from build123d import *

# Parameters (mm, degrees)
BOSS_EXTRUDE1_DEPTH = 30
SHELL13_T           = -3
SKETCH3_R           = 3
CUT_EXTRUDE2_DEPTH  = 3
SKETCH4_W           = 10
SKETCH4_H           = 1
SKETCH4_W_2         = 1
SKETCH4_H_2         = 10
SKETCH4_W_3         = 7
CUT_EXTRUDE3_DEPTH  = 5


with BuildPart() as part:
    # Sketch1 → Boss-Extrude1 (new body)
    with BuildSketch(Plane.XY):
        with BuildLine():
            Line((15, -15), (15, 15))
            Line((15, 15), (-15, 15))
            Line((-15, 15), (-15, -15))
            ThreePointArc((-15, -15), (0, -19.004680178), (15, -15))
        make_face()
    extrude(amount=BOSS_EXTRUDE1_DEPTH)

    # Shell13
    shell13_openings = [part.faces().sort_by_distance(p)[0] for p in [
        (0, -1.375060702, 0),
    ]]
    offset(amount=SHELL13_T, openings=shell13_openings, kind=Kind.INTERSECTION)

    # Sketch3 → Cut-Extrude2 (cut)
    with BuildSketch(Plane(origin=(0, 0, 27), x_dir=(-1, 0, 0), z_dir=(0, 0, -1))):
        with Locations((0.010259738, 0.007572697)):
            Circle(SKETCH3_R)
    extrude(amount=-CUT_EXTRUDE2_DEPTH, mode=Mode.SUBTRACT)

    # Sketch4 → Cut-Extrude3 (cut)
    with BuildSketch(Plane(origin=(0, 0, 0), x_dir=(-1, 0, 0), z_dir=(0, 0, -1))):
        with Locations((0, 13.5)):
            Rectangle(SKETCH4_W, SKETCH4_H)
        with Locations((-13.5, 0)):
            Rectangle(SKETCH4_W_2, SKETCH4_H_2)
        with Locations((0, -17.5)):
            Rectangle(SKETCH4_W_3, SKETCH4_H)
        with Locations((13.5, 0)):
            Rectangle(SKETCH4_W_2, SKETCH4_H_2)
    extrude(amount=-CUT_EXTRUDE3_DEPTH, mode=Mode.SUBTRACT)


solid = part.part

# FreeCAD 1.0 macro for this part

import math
import FreeCAD as App
import Part
import Sketcher

V = App.Vector
Q = App.Units.Quantity


def faces_at(feature, points):
    """Names of the faces that lie closest to the given points."""
    faces = feature.Shape.Faces
    near = lambda p: min(range(len(faces)), key=lambda i: faces[i].distToShape(Part.Vertex(*p))[0])
    return sorted({f"Face{near(p) + 1}" for p in points})

doc = App.newDocument("Part")
body = doc.addObject("PartDesign::Body", "Body")

# Sketch on XY plane
sketch1 = body.newObject("Sketcher::SketchObject", "Sketch")
sketch1.AttachmentSupport = (doc.getObject("XY_Plane"), [""])
sketch1.MapMode = "FlatFace"
sketch1.addGeometry([
    Part.LineSegment(V(15, -15, 0), V(15, 15, 0)),
    Part.LineSegment(V(15, 15, 0), V(-15, 15, 0)),
    Part.LineSegment(V(-15, 15, 0), V(-15, -15, 0)),
    Part.ArcOfCircle(Part.Circle(V(0, 11.089791, 0), V(0, 0, 1), 30.094471), math.radians(-119.896212), math.radians(-60.103788)),
], False)
sketch1.addConstraint([
    Sketcher.Constraint("Coincident", 0, 2, 1, 1),
    Sketcher.Constraint("Coincident", 1, 2, 2, 1),
    Sketcher.Constraint("Coincident", 2, 2, 3, 1),
    Sketcher.Constraint("Coincident", 3, 2, 0, 1),
    Sketcher.Constraint("Vertical", 0),
    Sketcher.Constraint("Horizontal", 1),
    Sketcher.Constraint("Vertical", 2),
    Sketcher.Constraint("Symmetric", 0, 2, 2, 2, -1, 1),
    Sketcher.Constraint("PointOnObject", 3, 3, -2),
    Sketcher.Constraint("Equal", 1, 0),
    Sketcher.Constraint("DistanceX", 1, 2, 1, 1, Q("30 mm")),
    Sketcher.Constraint("Radius", 3, Q("30.094471 mm")),
])
pad1 = body.newObject("PartDesign::Pad", "Pad")
pad1.Profile = sketch1
pad1.Length = 30
doc.recompute()

thickness = body.newObject("PartDesign::Thickness", "Thickness")
thickness.Base = (pad1, faces_at(pad1, [(0, -2.002, 0)]))
thickness.Value = 3
thickness.Reversed = True
thickness.Join = "Intersection"

# Sketch on XY plane
sketch2 = body.newObject("Sketcher::SketchObject", "Sketch001")
sketch2.AttachmentSupport = (doc.getObject("XY_Plane"), [""])
sketch2.MapMode = "FlatFace"
sketch2.AttachmentOffset = App.Placement(V(0, 0, 27), App.Rotation())
sketch2.addGeometry(Part.Circle(V(-0.01026, 0.007573, 0), V(0, 0, 1), 3), False)
sketch2.addConstraint([
    Sketcher.Constraint("Diameter", 0, Q("6 mm")),
    Sketcher.Constraint("DistanceX", 0, 3, -1, 1, Q("0.01026 mm")),
    Sketcher.Constraint("DistanceY", -1, 1, 0, 3, Q("0.007573 mm")),
])
pocket1 = body.newObject("PartDesign::Pocket", "Pocket")
pocket1.Profile = sketch2
pocket1.Length = 3
pocket1.Reversed = True

# Sketch on XY plane
sketch3 = body.newObject("Sketcher::SketchObject", "Sketch002")
sketch3.AttachmentSupport = (doc.getObject("XY_Plane"), [""])
sketch3.MapMode = "FlatFace"
sketch3.addGeometry([
    Part.LineSegment(V(5, 14, 0), V(5, 13, 0)),  # 0
    Part.LineSegment(V(5, 13, 0), V(-5, 13, 0)),  # 1
    Part.LineSegment(V(-5, 13, 0), V(-5, 14, 0)),  # 2
    Part.LineSegment(V(-5, 14, 0), V(5, 14, 0)),  # 3
    Part.LineSegment(V(14, 5, 0), V(14, -5, 0)),  # 4
    Part.LineSegment(V(14, -5, 0), V(13, -5, 0)),  # 5
    Part.LineSegment(V(13, -5, 0), V(13, 5, 0)),  # 6
    Part.LineSegment(V(13, 5, 0), V(14, 5, 0)),  # 7
    Part.LineSegment(V(3.5, -17, 0), V(3.5, -18, 0)),  # 8
    Part.LineSegment(V(3.5, -18, 0), V(-3.5, -18, 0)),  # 9
    Part.LineSegment(V(-3.5, -18, 0), V(-3.5, -17, 0)),  # 10
    Part.LineSegment(V(-3.5, -17, 0), V(3.5, -17, 0)),  # 11
    Part.LineSegment(V(-13, 5, 0), V(-13, -5, 0)),  # 12
    Part.LineSegment(V(-13, -5, 0), V(-14, -5, 0)),  # 13
    Part.LineSegment(V(-14, -5, 0), V(-14, 5, 0)),  # 14
    Part.LineSegment(V(-14, 5, 0), V(-13, 5, 0)),  # 15
], False)
sketch3.addConstraint([
    Sketcher.Constraint("Coincident", 0, 2, 1, 1),
    Sketcher.Constraint("Coincident", 1, 2, 2, 1),
    Sketcher.Constraint("Coincident", 2, 2, 3, 1),
    Sketcher.Constraint("Coincident", 3, 2, 0, 1),
    Sketcher.Constraint("Coincident", 4, 2, 5, 1),
    Sketcher.Constraint("Coincident", 5, 2, 6, 1),
    Sketcher.Constraint("Coincident", 6, 2, 7, 1),
    Sketcher.Constraint("Coincident", 7, 2, 4, 1),
    Sketcher.Constraint("Coincident", 8, 2, 9, 1),
    Sketcher.Constraint("Coincident", 9, 2, 10, 1),
    Sketcher.Constraint("Coincident", 10, 2, 11, 1),
    Sketcher.Constraint("Coincident", 11, 2, 8, 1),
    Sketcher.Constraint("Coincident", 12, 2, 13, 1),
    Sketcher.Constraint("Coincident", 13, 2, 14, 1),
    Sketcher.Constraint("Coincident", 14, 2, 15, 1),
    Sketcher.Constraint("Coincident", 15, 2, 12, 1),
    Sketcher.Constraint("Vertical", 0),
    Sketcher.Constraint("Horizontal", 1),
    Sketcher.Constraint("Vertical", 2),
    Sketcher.Constraint("Horizontal", 3),
    Sketcher.Constraint("Vertical", 4),
    Sketcher.Constraint("Horizontal", 5),
    Sketcher.Constraint("Vertical", 6),
    Sketcher.Constraint("Horizontal", 7),
    Sketcher.Constraint("Vertical", 8),
    Sketcher.Constraint("Horizontal", 9),
    Sketcher.Constraint("Vertical", 10),
    Sketcher.Constraint("Horizontal", 11),
    Sketcher.Constraint("Vertical", 12),
    Sketcher.Constraint("Horizontal", 13),
    Sketcher.Constraint("Vertical", 14),
    Sketcher.Constraint("Horizontal", 15),
    Sketcher.Constraint("Symmetric", 6, 2, 12, 2, -1, 1),
    Sketcher.Constraint("Symmetric", 4, 2, 14, 2, -1, 1),
    Sketcher.Constraint("Horizontal", 5, 2, 12, 2),
    Sketcher.Constraint("Equal", 15, 0),
    Sketcher.Constraint("Equal", 3, 4),
    Sketcher.Constraint("Equal", 2, 8),
    Sketcher.Constraint("DistanceX", 1, 2, 1, 1, Q("10 mm")),
    Sketcher.Constraint("DistanceX", 5, 2, 5, 1, Q("1 mm")),
    Sketcher.Constraint("DistanceX", 9, 2, 9, 1, Q("7 mm")),
    Sketcher.Constraint("DistanceX", -1, 1, 0, 2, Q("5 mm")),
    Sketcher.Constraint("DistanceY", -1, 1, 0, 2, Q("13 mm")),
    Sketcher.Constraint("DistanceX", -1, 1, 4, 2, Q("14 mm")),
    Sketcher.Constraint("DistanceY", 8, 2, -1, 1, Q("18 mm")),
    Sketcher.Constraint("DistanceX", -1, 1, 8, 2, Q("3.5 mm")),
])
pocket2 = body.newObject("PartDesign::Pocket", "Pocket001")
pocket2.Profile = sketch3
pocket2.Length = 5
pocket2.Reversed = True

doc.recompute()
